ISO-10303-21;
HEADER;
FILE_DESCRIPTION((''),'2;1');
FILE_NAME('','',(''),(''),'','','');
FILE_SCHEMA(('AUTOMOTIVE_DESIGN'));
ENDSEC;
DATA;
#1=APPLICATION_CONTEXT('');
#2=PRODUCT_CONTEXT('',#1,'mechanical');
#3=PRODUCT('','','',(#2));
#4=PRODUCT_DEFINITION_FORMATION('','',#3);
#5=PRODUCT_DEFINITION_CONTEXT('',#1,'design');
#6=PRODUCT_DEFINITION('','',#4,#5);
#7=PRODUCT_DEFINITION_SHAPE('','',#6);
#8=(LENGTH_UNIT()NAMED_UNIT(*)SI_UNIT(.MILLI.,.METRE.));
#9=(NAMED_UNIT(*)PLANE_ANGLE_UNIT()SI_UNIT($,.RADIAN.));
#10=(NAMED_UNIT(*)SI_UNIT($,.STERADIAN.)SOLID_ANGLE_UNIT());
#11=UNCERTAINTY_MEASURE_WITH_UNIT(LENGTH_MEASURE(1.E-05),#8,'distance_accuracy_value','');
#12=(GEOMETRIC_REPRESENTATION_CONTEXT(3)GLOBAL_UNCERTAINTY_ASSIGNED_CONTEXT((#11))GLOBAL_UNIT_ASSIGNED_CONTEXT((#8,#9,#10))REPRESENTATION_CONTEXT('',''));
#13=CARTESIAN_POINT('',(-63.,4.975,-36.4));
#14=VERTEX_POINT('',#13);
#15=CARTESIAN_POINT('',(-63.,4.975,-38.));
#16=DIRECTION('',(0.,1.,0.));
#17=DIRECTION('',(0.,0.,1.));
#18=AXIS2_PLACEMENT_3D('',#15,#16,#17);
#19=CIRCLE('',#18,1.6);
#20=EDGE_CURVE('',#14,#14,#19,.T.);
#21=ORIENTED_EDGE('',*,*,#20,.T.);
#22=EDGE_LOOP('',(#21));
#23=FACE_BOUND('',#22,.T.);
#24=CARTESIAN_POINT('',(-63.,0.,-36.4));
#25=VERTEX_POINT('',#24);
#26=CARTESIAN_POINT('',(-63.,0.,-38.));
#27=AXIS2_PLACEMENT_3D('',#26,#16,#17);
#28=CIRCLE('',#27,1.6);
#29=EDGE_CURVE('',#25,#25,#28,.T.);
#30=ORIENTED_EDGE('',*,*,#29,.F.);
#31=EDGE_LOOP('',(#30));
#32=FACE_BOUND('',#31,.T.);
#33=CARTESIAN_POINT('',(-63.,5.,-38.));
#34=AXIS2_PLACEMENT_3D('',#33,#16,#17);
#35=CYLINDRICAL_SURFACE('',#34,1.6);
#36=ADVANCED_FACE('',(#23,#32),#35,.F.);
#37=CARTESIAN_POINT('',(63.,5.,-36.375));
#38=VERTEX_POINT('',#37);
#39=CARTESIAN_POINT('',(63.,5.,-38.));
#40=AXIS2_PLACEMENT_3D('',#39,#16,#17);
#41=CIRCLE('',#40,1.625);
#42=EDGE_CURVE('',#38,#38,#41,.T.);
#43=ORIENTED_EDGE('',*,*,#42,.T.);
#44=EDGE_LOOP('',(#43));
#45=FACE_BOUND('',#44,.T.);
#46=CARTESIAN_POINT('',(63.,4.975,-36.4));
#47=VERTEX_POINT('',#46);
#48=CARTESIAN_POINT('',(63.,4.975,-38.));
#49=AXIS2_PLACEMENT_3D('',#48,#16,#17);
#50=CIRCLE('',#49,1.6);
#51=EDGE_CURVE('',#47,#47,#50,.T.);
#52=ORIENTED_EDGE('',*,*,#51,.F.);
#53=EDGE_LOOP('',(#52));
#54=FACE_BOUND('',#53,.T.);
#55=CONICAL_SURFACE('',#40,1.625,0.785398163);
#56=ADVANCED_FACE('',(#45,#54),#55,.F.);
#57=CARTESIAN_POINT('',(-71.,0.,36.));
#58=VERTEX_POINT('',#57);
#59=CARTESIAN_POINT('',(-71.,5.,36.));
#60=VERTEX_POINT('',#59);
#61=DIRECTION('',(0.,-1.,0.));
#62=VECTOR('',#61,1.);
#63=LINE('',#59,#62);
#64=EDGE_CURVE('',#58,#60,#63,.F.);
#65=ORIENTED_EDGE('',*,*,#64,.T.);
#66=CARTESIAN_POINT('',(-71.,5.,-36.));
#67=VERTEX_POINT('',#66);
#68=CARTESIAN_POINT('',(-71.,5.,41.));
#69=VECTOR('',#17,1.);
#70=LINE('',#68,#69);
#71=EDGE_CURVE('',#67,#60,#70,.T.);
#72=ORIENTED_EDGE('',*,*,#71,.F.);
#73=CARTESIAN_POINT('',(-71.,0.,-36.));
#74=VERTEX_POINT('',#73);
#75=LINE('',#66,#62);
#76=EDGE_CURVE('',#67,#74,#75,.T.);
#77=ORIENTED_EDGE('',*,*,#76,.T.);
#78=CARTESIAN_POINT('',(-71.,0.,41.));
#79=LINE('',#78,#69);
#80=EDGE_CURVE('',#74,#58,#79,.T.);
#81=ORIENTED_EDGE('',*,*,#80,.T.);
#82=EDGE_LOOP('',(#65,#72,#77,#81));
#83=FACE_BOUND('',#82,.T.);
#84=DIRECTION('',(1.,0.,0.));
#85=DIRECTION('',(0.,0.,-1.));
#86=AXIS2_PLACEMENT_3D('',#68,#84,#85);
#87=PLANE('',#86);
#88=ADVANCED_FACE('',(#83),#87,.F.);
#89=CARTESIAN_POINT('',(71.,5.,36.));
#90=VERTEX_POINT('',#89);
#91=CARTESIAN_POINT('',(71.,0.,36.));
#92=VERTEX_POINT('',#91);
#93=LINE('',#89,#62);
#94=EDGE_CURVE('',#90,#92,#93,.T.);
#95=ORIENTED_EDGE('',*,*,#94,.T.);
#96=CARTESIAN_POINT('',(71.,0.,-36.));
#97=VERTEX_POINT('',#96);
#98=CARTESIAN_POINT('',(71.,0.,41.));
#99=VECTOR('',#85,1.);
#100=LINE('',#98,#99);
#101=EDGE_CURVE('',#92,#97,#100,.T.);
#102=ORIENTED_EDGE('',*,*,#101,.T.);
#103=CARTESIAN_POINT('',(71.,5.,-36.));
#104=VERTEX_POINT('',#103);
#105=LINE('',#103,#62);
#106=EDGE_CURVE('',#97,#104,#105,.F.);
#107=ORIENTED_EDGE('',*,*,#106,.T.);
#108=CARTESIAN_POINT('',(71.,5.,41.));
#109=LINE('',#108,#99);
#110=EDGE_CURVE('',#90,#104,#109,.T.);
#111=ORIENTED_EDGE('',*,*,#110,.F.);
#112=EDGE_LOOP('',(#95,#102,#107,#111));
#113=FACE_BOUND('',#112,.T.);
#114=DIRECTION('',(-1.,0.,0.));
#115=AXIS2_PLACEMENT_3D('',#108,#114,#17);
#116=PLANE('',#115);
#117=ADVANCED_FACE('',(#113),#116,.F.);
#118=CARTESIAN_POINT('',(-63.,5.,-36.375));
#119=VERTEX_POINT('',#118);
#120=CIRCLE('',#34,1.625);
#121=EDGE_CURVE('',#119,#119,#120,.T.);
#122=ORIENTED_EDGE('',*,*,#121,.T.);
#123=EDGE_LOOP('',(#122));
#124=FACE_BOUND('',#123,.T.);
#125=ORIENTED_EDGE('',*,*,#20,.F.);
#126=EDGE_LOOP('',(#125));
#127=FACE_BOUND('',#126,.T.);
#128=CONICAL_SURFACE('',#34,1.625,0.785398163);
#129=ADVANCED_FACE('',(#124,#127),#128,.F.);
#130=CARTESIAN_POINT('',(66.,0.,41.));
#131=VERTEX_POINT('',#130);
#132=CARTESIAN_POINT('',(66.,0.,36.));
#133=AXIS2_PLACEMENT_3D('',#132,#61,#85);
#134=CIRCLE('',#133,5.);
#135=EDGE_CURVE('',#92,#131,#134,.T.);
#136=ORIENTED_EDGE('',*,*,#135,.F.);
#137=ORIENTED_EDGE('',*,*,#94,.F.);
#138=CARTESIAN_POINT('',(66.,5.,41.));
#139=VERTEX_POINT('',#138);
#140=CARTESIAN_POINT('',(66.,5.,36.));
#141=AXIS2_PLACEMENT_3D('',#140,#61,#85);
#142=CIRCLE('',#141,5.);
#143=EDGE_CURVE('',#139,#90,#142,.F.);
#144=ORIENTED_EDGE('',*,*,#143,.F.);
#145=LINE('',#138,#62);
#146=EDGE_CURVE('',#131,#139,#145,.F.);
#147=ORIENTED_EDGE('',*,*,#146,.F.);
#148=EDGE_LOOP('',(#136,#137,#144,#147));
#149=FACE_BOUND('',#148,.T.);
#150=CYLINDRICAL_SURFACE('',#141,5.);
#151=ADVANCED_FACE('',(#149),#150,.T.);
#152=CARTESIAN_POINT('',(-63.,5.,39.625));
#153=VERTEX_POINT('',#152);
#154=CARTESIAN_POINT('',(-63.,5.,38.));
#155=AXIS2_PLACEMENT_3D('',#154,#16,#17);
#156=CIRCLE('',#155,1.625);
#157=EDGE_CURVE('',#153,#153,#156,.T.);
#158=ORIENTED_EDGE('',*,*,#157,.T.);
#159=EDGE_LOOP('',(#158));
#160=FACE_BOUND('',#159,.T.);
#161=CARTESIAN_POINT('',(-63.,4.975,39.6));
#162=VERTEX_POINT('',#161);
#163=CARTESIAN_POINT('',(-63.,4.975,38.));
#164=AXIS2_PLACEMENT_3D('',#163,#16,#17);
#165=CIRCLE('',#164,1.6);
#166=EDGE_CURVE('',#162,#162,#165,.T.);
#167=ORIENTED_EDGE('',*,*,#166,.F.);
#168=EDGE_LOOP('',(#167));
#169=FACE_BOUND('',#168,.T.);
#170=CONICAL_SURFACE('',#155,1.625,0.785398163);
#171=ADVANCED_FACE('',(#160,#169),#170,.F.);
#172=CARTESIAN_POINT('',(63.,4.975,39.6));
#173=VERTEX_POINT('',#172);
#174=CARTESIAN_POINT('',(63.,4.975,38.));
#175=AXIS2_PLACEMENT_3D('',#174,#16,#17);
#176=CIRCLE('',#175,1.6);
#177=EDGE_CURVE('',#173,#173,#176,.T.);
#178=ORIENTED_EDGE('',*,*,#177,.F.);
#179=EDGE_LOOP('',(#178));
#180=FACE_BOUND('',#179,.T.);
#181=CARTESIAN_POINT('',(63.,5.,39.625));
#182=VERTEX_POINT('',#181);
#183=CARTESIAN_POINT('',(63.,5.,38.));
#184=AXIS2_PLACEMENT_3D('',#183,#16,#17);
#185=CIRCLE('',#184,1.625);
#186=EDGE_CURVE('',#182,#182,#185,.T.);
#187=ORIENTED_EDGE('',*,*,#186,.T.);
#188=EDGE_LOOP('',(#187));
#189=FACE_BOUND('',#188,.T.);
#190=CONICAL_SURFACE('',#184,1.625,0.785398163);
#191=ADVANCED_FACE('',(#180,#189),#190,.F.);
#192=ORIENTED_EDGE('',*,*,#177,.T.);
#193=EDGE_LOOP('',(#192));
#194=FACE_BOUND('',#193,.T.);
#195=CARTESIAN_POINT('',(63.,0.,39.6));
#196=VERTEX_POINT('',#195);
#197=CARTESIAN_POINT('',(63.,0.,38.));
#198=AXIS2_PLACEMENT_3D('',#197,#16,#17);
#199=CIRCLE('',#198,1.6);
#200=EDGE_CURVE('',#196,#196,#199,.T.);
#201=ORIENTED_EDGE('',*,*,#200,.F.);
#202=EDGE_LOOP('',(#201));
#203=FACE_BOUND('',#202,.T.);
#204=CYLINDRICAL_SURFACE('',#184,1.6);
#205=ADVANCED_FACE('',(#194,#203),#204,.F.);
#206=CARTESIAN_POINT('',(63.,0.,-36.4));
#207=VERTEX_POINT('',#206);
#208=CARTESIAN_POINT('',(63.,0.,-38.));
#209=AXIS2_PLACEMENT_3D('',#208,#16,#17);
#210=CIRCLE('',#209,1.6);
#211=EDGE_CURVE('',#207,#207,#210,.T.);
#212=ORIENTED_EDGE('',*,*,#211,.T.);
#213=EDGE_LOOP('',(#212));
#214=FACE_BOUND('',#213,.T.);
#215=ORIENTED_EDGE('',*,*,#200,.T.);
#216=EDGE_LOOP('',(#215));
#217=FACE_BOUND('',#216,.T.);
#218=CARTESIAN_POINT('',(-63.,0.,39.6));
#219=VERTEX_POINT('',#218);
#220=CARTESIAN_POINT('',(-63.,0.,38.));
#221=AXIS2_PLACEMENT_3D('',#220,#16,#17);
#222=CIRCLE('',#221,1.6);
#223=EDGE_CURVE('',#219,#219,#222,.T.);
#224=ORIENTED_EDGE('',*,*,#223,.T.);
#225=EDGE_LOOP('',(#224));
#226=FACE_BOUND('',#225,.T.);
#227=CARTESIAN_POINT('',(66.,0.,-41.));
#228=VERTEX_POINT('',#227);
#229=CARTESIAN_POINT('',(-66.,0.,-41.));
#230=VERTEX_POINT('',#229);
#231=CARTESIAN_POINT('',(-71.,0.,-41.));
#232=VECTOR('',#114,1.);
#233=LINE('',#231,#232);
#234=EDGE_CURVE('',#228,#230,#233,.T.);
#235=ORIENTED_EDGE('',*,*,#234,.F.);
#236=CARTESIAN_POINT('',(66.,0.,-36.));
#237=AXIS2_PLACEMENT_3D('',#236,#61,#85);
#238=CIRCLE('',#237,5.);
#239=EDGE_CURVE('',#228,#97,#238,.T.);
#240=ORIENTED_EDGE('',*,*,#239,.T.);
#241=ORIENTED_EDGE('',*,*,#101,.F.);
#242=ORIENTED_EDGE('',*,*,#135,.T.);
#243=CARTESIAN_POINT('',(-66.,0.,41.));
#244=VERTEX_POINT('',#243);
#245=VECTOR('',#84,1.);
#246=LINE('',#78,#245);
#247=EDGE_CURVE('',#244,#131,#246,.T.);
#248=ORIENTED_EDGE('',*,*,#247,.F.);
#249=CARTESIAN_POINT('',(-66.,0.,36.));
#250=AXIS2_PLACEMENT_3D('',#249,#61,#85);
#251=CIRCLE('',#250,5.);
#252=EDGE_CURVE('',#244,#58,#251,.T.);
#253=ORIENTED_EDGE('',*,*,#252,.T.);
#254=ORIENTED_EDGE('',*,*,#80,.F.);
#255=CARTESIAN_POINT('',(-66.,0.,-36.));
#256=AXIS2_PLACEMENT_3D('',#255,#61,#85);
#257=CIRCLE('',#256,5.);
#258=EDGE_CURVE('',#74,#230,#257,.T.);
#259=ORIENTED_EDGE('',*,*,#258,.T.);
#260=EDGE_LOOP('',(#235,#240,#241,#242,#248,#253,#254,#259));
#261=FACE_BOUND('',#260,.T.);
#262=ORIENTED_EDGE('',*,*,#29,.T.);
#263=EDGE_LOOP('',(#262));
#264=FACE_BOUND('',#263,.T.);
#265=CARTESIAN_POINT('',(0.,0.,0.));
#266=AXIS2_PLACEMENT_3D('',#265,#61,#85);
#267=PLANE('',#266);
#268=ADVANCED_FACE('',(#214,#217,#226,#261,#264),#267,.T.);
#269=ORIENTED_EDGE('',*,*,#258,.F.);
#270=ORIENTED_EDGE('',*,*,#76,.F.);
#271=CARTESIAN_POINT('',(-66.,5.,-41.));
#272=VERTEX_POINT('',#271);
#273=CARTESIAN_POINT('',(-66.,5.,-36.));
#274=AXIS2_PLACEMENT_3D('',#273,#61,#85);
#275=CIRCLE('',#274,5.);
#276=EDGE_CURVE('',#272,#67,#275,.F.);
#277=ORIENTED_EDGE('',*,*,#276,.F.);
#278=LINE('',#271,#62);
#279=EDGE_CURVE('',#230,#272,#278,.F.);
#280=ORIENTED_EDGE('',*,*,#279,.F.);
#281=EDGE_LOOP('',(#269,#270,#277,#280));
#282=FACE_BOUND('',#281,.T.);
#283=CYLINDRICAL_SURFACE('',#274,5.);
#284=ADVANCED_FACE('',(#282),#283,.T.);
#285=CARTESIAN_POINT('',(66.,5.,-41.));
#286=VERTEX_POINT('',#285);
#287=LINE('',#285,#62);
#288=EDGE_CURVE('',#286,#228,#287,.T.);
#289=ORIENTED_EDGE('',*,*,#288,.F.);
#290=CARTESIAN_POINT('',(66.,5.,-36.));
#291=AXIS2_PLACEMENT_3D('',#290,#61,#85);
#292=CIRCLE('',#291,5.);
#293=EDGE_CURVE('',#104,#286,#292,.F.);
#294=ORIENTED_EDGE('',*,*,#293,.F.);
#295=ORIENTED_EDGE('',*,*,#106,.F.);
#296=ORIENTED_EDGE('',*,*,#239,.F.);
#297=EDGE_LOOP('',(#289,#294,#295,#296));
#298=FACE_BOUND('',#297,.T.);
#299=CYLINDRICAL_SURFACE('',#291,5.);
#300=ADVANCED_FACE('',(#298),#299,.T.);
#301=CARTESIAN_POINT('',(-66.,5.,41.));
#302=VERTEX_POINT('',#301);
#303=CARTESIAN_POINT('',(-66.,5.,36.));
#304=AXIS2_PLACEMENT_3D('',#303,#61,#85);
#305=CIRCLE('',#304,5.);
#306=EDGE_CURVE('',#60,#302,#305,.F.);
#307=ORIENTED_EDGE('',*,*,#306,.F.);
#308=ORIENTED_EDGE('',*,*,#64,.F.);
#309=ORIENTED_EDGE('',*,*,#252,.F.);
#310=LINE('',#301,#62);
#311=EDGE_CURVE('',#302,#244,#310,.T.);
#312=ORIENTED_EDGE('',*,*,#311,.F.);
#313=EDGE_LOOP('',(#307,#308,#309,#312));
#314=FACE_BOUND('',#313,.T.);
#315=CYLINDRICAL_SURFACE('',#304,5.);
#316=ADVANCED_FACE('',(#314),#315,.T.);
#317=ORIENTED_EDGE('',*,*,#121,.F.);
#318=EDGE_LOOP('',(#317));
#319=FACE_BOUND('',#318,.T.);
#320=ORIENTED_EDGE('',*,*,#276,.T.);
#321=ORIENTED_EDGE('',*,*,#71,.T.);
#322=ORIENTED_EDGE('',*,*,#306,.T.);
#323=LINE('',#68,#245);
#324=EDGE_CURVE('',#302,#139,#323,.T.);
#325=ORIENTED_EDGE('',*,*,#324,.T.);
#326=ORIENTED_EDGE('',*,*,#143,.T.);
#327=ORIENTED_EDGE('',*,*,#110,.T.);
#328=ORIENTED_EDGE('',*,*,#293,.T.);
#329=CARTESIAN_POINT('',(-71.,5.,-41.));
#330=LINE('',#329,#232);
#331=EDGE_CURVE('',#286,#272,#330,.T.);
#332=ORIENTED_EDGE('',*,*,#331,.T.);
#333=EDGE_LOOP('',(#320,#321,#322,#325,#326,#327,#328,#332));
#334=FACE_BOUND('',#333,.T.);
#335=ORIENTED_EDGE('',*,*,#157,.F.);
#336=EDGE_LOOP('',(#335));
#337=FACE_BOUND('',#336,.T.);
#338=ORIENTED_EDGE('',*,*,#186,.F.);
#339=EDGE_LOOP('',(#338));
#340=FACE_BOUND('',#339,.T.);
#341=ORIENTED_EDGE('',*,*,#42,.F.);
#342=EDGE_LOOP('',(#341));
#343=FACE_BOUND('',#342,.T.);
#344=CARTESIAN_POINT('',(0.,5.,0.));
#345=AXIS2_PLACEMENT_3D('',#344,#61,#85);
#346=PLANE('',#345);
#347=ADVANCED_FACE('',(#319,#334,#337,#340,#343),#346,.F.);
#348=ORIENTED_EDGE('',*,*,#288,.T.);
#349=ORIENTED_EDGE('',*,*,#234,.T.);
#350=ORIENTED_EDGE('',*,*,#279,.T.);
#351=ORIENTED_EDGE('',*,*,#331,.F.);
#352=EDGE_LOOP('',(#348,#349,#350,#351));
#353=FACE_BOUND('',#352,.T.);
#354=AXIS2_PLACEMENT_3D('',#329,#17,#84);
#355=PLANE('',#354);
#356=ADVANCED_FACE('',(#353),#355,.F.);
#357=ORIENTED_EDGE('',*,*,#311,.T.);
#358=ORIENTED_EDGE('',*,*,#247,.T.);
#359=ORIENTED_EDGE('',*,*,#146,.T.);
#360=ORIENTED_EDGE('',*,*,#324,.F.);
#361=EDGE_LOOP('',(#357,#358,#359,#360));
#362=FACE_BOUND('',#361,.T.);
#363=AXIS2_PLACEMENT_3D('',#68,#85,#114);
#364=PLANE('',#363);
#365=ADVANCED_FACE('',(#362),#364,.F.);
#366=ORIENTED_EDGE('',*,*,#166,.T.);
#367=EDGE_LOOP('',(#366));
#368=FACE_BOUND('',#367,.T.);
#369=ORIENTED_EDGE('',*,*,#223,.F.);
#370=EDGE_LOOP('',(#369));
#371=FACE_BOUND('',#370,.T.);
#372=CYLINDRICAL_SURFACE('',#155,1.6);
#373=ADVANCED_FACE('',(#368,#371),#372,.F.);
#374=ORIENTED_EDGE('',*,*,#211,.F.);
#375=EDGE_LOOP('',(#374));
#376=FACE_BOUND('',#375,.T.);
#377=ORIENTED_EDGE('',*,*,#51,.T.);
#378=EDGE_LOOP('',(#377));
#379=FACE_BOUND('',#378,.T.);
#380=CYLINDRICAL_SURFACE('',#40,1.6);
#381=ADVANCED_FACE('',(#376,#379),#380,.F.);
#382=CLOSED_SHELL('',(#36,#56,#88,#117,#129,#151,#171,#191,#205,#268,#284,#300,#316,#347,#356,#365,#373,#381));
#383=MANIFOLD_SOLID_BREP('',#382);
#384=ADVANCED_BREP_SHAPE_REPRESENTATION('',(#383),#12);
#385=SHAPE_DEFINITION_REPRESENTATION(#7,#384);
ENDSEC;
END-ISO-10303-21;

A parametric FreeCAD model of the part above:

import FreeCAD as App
import Part
import Sketcher

V = App.Vector
Q = App.Units.Quantity


def edges_at(feature, points):
    """Names of the edges that pass closest to the given points."""
    edges = feature.Shape.Edges
    near = lambda p: min(range(len(edges)), key=lambda i: edges[i].distToShape(Part.Vertex(*p))[0])
    return sorted({f"Edge{near(p) + 1}" for p in points})


def add_polygon(sketch, points):
    """Adds a closed chain of lines whose ends are joined by coincident constraints."""
    first, n = sketch.GeometryCount, len(points)
    for a, b in zip(points, points[1:] + points[:1]):
        sketch.addGeometry(Part.LineSegment(App.Vector(*a, 0), App.Vector(*b, 0)), False)
    for i in range(n):
        sketch.addConstraint(Sketcher.Constraint("Coincident", first + i, 2, first + (i + 1) % n, 1))

doc = App.newDocument("Part")
params = doc.addObject("Spreadsheet::Sheet", "Params")
for row, (alias, value) in enumerate([
    ("sketch1_width", "142 mm"),
    ("sketch1_height", "82 mm"),
    ("pad1_length", "5 mm"),
    ("sketch2_diameter", "3.2 mm"),
    ("hole_diameter", "3.2 mm"),
    ("hole_csink_diameter", "3.25 mm"),
    ("fillet_radius", "5 mm"),
], start=1):
    params.set(f"A{row}", alias)
    params.set(f"B{row}", "=" + value)
    params.setAlias(f"B{row}", alias)

body = doc.addObject("PartDesign::Body", "Body")

sketch1 = body.newObject("Sketcher::SketchObject", "Sketch")
sketch1.AttachmentSupport = (doc.getObject("XZ_Plane"), [""])
sketch1.MapMode = "FlatFace"
add_polygon(sketch1, [(-71, -41), (-71, 41), (71, 41), (71, -41)])
sketch1.addConstraint([
    Sketcher.Constraint("Vertical", 0),
    Sketcher.Constraint("Horizontal", 1),
    Sketcher.Constraint("Vertical", 2),
    Sketcher.Constraint("Horizontal", 3),
    Sketcher.Constraint("Symmetric", 0, 2, 2, 2, -1, 1),
    Sketcher.Constraint("DistanceX", 1, 1, 1, 2, Q("142 mm")),
    Sketcher.Constraint("DistanceY", 0, 1, 0, 2, Q("82 mm")),
])
sketch1.setExpression("Constraints[9]", "Params.sketch1_width")
sketch1.setExpression("Constraints[10]", "Params.sketch1_height")
pad1 = body.newObject("PartDesign::Pad", "Pad")
pad1.Profile = sketch1
pad1.setExpression("Length", "Params.pad1_length")
pad1.Reversed = True

sketch2 = body.newObject("Sketcher::SketchObject", "Sketch001")
sketch2.AttachmentSupport = (doc.getObject("XZ_Plane"), [""])
sketch2.MapMode = "FlatFace"
sketch2.AttachmentOffset = App.Placement(V(0, 0, -5), App.Rotation())
sketch2.addGeometry([
    Part.Circle(V(-63, -38, 0), V(0, 0, 1), 1.6),
    Part.Circle(V(-63, 38, 0), V(0, 0, 1), 1.6),
    Part.Circle(V(63, -38, 0), V(0, 0, 1), 1.6),
    Part.Circle(V(63, 38, 0), V(0, 0, 1), 1.6),
], False)
sketch2.addConstraint([
    Sketcher.Constraint("Equal", 0, 1),
    Sketcher.Constraint("Equal", 1, 2),
    Sketcher.Constraint("Equal", 2, 3),
    Sketcher.Constraint("Symmetric", 1, 3, 2, 3, -1, 1),
    Sketcher.Constraint("Symmetric", 0, 3, 3, 3, -1, 1),
    Sketcher.Constraint("Symmetric", 0, 3, 2, 3, -2),
    Sketcher.Constraint("Diameter", 0, Q("3.2 mm")),
    Sketcher.Constraint("DistanceX", 0, 3, -1, 1, Q("63 mm")),
    Sketcher.Constraint("DistanceY", 0, 3, -1, 1, Q("38 mm")),
])
sketch2.setExpression("Constraints[6]", "Params.sketch2_diameter")
doc.recompute()
hole = body.newObject("PartDesign::Hole", "Hole")
hole.Profile = sketch2
hole.ThreadType = "None"
hole.setExpression("Diameter", "Params.hole_diameter")
hole.DepthType = "ThroughAll"
hole.HoleCutType = "Countersink"
hole.setExpression("HoleCutDiameter", "Params.hole_csink_diameter")
hole.HoleCutCountersinkAngle = 90
hole.Reversed = True
doc.recompute()

fillet = body.newObject("PartDesign::Fillet", "Fillet")
fillet.Base = (hole, edges_at(hole, [
    (71, 2.5, 41),
    (-71, 2.5, 41),
    (-71, 2.5, -41),
    (71, 2.5, -41),
]))
fillet.setExpression("Radius", "Params.fillet_radius")

doc.recompute()
